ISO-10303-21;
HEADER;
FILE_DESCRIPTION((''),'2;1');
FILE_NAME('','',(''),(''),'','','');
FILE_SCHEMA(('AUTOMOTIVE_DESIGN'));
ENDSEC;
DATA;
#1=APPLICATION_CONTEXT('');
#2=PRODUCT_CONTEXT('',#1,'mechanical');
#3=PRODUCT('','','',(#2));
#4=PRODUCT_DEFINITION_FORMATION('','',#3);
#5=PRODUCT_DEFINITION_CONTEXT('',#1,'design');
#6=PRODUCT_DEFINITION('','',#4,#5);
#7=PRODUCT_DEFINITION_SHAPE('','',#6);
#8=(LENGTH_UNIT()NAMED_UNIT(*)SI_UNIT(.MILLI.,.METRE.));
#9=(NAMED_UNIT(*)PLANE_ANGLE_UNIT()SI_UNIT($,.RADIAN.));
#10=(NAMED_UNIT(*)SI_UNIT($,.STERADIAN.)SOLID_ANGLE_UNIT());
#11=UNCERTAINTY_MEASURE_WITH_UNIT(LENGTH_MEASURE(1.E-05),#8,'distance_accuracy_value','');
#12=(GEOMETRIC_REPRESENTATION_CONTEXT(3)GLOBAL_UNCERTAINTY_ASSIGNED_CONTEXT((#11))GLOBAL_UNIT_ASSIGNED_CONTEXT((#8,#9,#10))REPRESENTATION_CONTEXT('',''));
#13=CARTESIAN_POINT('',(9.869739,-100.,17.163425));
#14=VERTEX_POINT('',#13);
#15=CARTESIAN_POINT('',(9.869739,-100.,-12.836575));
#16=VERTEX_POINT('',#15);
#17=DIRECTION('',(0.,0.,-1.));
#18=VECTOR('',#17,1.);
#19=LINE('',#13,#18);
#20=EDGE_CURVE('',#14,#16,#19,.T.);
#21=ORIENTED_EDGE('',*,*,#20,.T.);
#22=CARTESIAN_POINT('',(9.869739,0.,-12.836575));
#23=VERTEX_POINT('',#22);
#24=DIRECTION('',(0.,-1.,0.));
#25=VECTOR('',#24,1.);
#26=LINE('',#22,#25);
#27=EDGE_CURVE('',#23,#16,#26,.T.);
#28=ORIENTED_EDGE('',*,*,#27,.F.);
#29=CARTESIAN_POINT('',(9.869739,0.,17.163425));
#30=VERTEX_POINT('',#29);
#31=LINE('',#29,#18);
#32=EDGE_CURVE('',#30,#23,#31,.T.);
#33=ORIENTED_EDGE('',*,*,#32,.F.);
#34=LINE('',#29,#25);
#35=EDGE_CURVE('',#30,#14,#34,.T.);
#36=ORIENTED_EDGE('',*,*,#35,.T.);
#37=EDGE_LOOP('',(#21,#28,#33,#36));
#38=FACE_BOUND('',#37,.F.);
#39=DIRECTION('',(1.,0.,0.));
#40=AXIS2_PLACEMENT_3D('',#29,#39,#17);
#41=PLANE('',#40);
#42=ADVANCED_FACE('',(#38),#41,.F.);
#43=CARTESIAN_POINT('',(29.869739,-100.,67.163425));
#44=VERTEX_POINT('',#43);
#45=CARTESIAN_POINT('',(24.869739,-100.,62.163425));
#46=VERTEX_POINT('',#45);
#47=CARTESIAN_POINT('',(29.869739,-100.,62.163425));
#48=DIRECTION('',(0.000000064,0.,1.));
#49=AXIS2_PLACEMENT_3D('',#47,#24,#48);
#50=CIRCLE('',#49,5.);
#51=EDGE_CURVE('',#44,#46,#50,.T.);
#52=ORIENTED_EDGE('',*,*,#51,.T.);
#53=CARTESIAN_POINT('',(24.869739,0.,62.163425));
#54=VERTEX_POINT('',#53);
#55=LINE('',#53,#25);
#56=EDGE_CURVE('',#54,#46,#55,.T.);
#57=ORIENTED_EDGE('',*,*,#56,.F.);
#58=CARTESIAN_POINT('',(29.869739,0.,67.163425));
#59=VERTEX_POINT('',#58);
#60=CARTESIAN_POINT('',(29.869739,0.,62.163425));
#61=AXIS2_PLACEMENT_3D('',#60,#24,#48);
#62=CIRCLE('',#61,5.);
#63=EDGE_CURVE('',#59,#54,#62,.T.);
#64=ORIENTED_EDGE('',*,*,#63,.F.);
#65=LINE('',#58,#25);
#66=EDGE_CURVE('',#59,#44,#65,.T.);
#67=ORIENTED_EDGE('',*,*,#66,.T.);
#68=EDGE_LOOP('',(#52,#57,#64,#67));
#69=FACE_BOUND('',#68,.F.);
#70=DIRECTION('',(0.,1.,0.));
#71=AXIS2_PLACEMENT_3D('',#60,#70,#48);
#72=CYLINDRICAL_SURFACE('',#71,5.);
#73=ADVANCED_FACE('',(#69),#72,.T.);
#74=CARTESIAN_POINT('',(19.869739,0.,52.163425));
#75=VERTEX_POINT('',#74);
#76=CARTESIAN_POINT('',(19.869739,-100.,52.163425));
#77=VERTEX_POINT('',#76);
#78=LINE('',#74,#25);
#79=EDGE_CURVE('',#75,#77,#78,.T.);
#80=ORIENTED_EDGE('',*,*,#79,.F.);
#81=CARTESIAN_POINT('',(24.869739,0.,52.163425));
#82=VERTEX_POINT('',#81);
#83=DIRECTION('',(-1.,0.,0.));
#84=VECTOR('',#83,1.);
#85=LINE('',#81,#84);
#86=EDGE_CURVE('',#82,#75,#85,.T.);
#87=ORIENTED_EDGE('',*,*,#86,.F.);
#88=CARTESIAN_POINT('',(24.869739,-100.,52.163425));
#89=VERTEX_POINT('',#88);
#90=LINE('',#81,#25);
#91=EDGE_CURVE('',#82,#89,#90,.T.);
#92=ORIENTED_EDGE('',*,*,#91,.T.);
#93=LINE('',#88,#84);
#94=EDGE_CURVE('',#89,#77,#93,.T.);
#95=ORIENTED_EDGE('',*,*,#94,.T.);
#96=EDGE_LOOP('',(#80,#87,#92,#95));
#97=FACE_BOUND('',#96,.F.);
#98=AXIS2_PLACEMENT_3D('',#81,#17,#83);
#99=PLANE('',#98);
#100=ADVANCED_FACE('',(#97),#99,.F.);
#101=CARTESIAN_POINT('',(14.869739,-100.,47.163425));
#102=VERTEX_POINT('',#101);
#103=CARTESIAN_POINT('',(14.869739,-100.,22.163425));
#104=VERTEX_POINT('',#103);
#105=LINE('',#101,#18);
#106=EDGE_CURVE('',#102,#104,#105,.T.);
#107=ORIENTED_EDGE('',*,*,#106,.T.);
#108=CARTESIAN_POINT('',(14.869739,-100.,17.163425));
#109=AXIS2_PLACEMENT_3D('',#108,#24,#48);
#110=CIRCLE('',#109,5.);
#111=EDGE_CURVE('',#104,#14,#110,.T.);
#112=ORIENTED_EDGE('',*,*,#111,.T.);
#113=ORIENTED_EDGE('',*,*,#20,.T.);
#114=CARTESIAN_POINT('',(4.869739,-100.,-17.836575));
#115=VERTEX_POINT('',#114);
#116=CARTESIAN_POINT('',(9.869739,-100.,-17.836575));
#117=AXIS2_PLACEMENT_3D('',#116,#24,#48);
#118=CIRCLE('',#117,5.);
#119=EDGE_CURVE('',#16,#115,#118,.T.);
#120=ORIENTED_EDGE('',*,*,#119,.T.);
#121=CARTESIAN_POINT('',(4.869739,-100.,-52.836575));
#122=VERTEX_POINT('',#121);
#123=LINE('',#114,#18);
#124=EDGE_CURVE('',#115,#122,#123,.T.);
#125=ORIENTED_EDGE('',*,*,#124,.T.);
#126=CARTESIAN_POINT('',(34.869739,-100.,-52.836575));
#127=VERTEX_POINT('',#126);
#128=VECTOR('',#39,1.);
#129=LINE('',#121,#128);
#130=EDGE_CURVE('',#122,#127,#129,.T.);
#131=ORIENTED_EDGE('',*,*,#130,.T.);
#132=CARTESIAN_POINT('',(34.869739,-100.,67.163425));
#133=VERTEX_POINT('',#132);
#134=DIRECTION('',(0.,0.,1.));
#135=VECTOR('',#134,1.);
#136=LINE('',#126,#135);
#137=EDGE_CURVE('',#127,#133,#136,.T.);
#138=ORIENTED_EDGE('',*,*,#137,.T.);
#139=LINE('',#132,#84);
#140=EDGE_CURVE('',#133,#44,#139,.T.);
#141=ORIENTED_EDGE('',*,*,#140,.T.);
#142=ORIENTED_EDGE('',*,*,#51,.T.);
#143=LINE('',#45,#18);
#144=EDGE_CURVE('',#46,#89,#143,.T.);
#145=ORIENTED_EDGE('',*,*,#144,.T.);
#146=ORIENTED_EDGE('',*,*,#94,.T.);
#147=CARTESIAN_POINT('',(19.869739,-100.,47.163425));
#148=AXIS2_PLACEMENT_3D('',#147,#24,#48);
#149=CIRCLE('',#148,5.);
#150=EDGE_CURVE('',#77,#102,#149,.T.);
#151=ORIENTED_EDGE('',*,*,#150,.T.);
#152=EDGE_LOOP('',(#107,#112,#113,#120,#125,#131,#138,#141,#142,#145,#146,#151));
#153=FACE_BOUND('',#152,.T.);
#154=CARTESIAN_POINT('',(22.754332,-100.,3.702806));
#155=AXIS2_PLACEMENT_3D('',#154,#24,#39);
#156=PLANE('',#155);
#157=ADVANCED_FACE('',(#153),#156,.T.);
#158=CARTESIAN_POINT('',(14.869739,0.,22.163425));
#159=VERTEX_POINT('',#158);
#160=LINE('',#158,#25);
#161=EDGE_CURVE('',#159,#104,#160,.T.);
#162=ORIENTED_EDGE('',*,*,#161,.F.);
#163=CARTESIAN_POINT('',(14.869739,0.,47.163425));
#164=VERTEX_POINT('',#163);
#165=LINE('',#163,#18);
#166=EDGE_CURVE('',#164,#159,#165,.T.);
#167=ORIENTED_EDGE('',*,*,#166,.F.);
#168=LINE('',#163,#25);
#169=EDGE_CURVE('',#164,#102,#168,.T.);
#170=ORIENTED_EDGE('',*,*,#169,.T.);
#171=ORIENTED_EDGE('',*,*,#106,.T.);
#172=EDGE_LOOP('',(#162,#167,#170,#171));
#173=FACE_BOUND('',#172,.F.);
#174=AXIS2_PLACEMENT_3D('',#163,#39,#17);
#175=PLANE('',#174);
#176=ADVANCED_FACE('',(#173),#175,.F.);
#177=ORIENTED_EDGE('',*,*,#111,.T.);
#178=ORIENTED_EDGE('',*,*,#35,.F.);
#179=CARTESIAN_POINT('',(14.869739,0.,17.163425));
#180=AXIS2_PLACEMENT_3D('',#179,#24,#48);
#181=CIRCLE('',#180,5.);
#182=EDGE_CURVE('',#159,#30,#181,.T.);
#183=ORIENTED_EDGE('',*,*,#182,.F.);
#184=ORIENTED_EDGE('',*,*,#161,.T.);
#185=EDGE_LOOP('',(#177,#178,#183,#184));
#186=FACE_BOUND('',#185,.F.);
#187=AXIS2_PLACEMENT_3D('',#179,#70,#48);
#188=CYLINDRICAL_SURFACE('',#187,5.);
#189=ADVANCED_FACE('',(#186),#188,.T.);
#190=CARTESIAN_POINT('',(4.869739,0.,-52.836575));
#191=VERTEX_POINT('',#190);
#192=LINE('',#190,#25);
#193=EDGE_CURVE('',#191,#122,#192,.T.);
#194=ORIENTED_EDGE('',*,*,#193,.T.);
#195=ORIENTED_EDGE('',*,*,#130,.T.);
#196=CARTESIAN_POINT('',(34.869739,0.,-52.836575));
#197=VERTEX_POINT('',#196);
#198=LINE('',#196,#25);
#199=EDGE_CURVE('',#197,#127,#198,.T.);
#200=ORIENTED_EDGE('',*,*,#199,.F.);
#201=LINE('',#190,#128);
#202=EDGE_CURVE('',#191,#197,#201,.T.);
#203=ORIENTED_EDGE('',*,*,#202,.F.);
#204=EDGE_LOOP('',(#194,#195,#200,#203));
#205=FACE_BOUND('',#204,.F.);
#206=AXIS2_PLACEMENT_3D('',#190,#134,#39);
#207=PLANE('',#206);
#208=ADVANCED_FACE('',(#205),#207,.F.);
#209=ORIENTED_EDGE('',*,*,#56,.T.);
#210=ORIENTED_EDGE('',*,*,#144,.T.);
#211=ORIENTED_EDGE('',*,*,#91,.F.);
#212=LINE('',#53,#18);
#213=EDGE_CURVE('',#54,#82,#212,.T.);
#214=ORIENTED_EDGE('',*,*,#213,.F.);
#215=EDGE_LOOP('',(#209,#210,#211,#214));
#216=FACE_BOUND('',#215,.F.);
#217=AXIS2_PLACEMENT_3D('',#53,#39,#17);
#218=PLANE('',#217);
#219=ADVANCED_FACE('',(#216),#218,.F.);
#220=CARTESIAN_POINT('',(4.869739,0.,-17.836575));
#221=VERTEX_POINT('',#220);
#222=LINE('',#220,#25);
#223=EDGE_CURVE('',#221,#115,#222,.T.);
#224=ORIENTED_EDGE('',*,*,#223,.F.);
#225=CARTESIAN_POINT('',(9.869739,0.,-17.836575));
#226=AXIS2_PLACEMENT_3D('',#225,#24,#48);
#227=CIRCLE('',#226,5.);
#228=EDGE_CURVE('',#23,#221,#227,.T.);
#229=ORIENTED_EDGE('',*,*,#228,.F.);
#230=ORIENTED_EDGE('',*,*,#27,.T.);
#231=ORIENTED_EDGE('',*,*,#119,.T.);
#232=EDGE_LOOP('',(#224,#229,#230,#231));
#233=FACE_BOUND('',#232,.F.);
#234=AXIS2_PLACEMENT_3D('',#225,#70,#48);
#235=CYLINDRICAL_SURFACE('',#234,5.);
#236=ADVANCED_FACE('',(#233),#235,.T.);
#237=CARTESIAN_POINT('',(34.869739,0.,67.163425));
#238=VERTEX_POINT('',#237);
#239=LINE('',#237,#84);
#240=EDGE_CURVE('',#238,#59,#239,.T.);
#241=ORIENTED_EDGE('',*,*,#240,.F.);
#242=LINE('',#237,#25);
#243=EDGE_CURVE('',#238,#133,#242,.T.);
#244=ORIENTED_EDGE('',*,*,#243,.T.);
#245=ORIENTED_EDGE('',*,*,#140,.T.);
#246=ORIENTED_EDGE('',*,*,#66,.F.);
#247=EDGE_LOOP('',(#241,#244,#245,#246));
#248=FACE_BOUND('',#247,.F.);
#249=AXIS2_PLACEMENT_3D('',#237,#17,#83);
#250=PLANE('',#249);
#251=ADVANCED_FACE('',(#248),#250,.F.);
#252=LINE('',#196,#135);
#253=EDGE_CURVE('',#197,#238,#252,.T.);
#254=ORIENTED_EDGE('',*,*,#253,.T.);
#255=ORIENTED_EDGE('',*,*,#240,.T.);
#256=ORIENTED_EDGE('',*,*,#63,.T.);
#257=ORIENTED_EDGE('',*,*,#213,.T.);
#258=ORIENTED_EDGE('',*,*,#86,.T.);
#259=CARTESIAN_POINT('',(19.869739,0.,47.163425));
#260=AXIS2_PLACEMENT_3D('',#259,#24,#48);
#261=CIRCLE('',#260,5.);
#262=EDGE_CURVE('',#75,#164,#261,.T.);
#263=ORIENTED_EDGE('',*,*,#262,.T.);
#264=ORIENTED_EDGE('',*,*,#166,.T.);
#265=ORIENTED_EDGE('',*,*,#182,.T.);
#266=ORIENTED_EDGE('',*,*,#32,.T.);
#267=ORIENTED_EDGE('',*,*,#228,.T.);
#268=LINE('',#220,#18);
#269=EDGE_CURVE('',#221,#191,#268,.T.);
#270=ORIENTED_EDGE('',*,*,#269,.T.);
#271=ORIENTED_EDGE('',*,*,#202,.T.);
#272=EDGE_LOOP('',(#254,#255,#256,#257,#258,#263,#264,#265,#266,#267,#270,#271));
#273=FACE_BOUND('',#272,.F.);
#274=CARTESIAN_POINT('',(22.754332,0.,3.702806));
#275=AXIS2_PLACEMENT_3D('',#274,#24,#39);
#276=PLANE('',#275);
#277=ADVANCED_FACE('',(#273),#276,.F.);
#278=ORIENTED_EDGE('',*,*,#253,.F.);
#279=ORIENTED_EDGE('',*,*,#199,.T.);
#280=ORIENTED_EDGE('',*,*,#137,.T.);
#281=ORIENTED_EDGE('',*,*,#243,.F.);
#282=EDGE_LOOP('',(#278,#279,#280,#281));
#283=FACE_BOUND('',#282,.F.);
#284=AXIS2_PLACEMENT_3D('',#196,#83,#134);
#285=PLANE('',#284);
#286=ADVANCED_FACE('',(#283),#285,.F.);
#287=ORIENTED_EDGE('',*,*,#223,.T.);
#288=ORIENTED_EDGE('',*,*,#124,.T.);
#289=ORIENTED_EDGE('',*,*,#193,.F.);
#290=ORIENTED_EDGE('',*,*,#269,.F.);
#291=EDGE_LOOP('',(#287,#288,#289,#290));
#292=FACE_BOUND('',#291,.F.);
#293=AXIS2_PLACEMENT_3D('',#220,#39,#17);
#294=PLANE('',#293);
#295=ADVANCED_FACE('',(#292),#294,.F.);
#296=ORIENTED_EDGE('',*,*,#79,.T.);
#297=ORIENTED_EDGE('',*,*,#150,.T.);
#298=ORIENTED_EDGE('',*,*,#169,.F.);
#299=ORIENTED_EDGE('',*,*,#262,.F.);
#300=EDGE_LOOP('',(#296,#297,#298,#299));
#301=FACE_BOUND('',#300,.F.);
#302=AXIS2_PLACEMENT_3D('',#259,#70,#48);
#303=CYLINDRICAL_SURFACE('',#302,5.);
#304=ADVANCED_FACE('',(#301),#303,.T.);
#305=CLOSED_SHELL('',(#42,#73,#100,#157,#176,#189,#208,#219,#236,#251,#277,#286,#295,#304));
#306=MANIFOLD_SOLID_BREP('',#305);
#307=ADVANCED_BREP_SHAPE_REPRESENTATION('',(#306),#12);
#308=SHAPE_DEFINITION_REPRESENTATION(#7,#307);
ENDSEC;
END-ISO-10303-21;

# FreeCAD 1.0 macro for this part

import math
import FreeCAD as App
import Part
import Sketcher
from FreeCAD import Vector
Q = App.Units.Quantity

doc = App.newDocument("Part")
body = doc.addObject("PartDesign::Body", "Body")

# Sketch on XZ plane
sketch1 = body.newObject("Sketcher::SketchObject", "Sketch")
sketch1.AttachmentSupport = (doc.getObject("XZ_Plane"), [""])
sketch1.MapMode = "FlatFace"
sketch1.addGeometry([
    Part.LineSegment(Vector(34.869739, -52.836575, 0), Vector(34.869739, 67.163425, 0)),  # 0
    Part.LineSegment(Vector(34.869739, 67.163425, 0), Vector(29.869739, 67.163425, 0)),  # 1
    Part.ArcOfCircle(Part.Circle(Vector(29.869739, 62.163425, 0), Vector(0, 0, 1), 5), math.radians(89.999996), math.radians(180.000004)),  # 2
    Part.LineSegment(Vector(24.869739, 62.163425, 0), Vector(24.869739, 52.163425, 0)),  # 3
    Part.LineSegment(Vector(24.869739, 52.163425, 0), Vector(19.869739, 52.163425, 0)),  # 4
    Part.ArcOfCircle(Part.Circle(Vector(19.869739, 47.163425, 0), Vector(0, 0, 1), 5), math.radians(89.999996), math.radians(180.000004)),  # 5
    Part.LineSegment(Vector(14.869739, 47.163425, 0), Vector(14.869739, 22.163425, 0)),  # 6
    Part.ArcOfCircle(Part.Circle(Vector(14.869739, 17.163425, 0), Vector(0, 0, 1), 5), math.radians(89.999996), math.radians(180.000004)),  # 7
    Part.LineSegment(Vector(9.869739, 17.163425, 0), Vector(9.869739, -12.836575, 0)),  # 8
    Part.ArcOfCircle(Part.Circle(Vector(9.869739, -17.836575, 0), Vector(0, 0, 1), 5), math.radians(89.999996), math.radians(180.000004)),  # 9
    Part.LineSegment(Vector(4.869739, -17.836575, 0), Vector(4.869739, -52.836575, 0)),  # 10
    Part.LineSegment(Vector(4.869739, -52.836575, 0), Vector(34.869739, -52.836575, 0)),  # 11
], False)
sketch1.addConstraint([
    Sketcher.Constraint("Coincident", 0, 2, 1, 1),
    Sketcher.Constraint("Tangent", 1, 2, 2, 1),
    Sketcher.Constraint("Tangent", 2, 2, 3, 1),
    Sketcher.Constraint("Coincident", 3, 2, 4, 1),
    Sketcher.Constraint("Tangent", 4, 2, 5, 1),
    Sketcher.Constraint("Tangent", 5, 2, 6, 1),
    Sketcher.Constraint("Coincident", 6, 2, 7, 1),
    Sketcher.Constraint("Tangent", 7, 2, 8, 1),
    Sketcher.Constraint("Coincident", 8, 2, 9, 1),
    Sketcher.Constraint("Tangent", 9, 2, 10, 1),
    Sketcher.Constraint("Coincident", 10, 2, 11, 1),
    Sketcher.Constraint("Coincident", 11, 2, 0, 1),
    Sketcher.Constraint("Vertical", 0),
    Sketcher.Constraint("Horizontal", 1),
    Sketcher.Constraint("Vertical", 3),
    Sketcher.Constraint("Horizontal", 4),
    Sketcher.Constraint("Vertical", 6),
    Sketcher.Constraint("Vertical", 8),
    Sketcher.Constraint("Vertical", 10),
    Sketcher.Constraint("Horizontal", 11),
    Sketcher.Constraint("Equal", 2, 5),
    Sketcher.Constraint("Equal", 5, 7),
    Sketcher.Constraint("Equal", 7, 9),
    Sketcher.Constraint("Vertical", 7, 3, 5, 2),
    Sketcher.Constraint("Vertical", 9, 3, 7, 2),
    Sketcher.Constraint("Equal", 1, 4),
    Sketcher.Constraint("Equal", 11, 8),
    Sketcher.Constraint("Radius", 2, Q("5 mm")),
    Sketcher.Constraint("DistanceX", 1, 2, 1, 1, Q("5 mm")),
    Sketcher.Constraint("DistanceY", 0, 1, 0, 2, Q("120 mm")),
    Sketcher.Constraint("DistanceY", 3, 2, 3, 1, Q("10 mm")),
    Sketcher.Constraint("DistanceY", 6, 2, 6, 1, Q("25 mm")),
    Sketcher.Constraint("DistanceX", -1, 1, 2, 3, Q("29.869739 mm")),
    Sketcher.Constraint("DistanceY", -1, 1, 2, 3, Q("62.163425 mm")),
])
pad1 = body.newObject("PartDesign::Pad", "Pad")
pad1.Profile = sketch1
pad1.Length = 100

doc.recompute()
